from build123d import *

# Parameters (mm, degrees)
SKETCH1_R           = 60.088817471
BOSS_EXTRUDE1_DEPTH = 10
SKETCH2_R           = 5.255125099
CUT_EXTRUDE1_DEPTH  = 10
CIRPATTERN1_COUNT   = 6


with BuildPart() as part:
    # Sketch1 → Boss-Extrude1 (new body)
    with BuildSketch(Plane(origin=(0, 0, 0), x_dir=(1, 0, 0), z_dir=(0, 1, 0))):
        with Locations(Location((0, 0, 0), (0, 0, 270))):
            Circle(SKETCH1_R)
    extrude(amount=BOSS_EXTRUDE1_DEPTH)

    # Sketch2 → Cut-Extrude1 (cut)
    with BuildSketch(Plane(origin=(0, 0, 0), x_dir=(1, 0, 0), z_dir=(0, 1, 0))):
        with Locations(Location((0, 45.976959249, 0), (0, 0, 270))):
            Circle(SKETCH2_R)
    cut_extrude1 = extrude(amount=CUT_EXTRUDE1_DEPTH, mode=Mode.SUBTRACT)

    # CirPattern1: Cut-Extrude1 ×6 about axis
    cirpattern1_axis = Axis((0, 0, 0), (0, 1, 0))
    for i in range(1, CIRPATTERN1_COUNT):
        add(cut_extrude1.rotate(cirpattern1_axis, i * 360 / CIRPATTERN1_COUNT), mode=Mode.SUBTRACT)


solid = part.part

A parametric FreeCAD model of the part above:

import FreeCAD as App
import Part
import Sketcher

V = App.Vector
Q = App.Units.Quantity

doc = App.newDocument("Part")
body = doc.addObject("PartDesign::Body", "Body")

sketch1 = body.newObject("Sketcher::SketchObject", "Sketch")
sketch1.AttachmentSupport = (doc.getObject("XZ_Plane"), [""])
sketch1.MapMode = "FlatFace"
sketch1.addGeometry(Part.Circle(V(0, 0, 0), V(0, 0, 1), 60), False)
sketch1.addConstraint(Sketcher.Constraint("Coincident", 0, 3, -1, 1))
sketch1.addConstraint(Sketcher.Constraint("Diameter", 0, Q("120.177635 mm")))
pad1 = body.newObject("PartDesign::Pad", "Pad")
pad1.Profile = sketch1
pad1.Length = 10
pad1.Reversed = True

sketch2 = body.newObject("Sketcher::SketchObject", "Sketch001")
sketch2.AttachmentSupport = (doc.getObject("XZ_Plane"), [""])
sketch2.MapMode = "FlatFace"
sketch2.addGeometry(Part.Circle(V(0, -46, 0), V(0, 0, 1), 5), False)
sketch2.addConstraint(Sketcher.Constraint("PointOnObject", 0, 3, -2))
sketch2.addConstraint(Sketcher.Constraint("Diameter", 0, Q("10.51025 mm")))
sketch2.addConstraint(Sketcher.Constraint("DistanceY", 0, 3, -1, 1, Q("45.976959 mm")))
pocket1 = body.newObject("PartDesign::Pocket", "Pocket")
pocket1.Profile = sketch2
pocket1.Length = 10
doc.recompute()

polarpattern = body.newObject("PartDesign::PolarPattern", "PolarPattern")
polarpattern.Originals = [pocket1]
polarpattern.Axis = (doc.getObject("Y_Axis"), [""])
polarpattern.Angle = 360
polarpattern.Occurrences = 6
body.Tip = polarpattern

doc.recompute()
